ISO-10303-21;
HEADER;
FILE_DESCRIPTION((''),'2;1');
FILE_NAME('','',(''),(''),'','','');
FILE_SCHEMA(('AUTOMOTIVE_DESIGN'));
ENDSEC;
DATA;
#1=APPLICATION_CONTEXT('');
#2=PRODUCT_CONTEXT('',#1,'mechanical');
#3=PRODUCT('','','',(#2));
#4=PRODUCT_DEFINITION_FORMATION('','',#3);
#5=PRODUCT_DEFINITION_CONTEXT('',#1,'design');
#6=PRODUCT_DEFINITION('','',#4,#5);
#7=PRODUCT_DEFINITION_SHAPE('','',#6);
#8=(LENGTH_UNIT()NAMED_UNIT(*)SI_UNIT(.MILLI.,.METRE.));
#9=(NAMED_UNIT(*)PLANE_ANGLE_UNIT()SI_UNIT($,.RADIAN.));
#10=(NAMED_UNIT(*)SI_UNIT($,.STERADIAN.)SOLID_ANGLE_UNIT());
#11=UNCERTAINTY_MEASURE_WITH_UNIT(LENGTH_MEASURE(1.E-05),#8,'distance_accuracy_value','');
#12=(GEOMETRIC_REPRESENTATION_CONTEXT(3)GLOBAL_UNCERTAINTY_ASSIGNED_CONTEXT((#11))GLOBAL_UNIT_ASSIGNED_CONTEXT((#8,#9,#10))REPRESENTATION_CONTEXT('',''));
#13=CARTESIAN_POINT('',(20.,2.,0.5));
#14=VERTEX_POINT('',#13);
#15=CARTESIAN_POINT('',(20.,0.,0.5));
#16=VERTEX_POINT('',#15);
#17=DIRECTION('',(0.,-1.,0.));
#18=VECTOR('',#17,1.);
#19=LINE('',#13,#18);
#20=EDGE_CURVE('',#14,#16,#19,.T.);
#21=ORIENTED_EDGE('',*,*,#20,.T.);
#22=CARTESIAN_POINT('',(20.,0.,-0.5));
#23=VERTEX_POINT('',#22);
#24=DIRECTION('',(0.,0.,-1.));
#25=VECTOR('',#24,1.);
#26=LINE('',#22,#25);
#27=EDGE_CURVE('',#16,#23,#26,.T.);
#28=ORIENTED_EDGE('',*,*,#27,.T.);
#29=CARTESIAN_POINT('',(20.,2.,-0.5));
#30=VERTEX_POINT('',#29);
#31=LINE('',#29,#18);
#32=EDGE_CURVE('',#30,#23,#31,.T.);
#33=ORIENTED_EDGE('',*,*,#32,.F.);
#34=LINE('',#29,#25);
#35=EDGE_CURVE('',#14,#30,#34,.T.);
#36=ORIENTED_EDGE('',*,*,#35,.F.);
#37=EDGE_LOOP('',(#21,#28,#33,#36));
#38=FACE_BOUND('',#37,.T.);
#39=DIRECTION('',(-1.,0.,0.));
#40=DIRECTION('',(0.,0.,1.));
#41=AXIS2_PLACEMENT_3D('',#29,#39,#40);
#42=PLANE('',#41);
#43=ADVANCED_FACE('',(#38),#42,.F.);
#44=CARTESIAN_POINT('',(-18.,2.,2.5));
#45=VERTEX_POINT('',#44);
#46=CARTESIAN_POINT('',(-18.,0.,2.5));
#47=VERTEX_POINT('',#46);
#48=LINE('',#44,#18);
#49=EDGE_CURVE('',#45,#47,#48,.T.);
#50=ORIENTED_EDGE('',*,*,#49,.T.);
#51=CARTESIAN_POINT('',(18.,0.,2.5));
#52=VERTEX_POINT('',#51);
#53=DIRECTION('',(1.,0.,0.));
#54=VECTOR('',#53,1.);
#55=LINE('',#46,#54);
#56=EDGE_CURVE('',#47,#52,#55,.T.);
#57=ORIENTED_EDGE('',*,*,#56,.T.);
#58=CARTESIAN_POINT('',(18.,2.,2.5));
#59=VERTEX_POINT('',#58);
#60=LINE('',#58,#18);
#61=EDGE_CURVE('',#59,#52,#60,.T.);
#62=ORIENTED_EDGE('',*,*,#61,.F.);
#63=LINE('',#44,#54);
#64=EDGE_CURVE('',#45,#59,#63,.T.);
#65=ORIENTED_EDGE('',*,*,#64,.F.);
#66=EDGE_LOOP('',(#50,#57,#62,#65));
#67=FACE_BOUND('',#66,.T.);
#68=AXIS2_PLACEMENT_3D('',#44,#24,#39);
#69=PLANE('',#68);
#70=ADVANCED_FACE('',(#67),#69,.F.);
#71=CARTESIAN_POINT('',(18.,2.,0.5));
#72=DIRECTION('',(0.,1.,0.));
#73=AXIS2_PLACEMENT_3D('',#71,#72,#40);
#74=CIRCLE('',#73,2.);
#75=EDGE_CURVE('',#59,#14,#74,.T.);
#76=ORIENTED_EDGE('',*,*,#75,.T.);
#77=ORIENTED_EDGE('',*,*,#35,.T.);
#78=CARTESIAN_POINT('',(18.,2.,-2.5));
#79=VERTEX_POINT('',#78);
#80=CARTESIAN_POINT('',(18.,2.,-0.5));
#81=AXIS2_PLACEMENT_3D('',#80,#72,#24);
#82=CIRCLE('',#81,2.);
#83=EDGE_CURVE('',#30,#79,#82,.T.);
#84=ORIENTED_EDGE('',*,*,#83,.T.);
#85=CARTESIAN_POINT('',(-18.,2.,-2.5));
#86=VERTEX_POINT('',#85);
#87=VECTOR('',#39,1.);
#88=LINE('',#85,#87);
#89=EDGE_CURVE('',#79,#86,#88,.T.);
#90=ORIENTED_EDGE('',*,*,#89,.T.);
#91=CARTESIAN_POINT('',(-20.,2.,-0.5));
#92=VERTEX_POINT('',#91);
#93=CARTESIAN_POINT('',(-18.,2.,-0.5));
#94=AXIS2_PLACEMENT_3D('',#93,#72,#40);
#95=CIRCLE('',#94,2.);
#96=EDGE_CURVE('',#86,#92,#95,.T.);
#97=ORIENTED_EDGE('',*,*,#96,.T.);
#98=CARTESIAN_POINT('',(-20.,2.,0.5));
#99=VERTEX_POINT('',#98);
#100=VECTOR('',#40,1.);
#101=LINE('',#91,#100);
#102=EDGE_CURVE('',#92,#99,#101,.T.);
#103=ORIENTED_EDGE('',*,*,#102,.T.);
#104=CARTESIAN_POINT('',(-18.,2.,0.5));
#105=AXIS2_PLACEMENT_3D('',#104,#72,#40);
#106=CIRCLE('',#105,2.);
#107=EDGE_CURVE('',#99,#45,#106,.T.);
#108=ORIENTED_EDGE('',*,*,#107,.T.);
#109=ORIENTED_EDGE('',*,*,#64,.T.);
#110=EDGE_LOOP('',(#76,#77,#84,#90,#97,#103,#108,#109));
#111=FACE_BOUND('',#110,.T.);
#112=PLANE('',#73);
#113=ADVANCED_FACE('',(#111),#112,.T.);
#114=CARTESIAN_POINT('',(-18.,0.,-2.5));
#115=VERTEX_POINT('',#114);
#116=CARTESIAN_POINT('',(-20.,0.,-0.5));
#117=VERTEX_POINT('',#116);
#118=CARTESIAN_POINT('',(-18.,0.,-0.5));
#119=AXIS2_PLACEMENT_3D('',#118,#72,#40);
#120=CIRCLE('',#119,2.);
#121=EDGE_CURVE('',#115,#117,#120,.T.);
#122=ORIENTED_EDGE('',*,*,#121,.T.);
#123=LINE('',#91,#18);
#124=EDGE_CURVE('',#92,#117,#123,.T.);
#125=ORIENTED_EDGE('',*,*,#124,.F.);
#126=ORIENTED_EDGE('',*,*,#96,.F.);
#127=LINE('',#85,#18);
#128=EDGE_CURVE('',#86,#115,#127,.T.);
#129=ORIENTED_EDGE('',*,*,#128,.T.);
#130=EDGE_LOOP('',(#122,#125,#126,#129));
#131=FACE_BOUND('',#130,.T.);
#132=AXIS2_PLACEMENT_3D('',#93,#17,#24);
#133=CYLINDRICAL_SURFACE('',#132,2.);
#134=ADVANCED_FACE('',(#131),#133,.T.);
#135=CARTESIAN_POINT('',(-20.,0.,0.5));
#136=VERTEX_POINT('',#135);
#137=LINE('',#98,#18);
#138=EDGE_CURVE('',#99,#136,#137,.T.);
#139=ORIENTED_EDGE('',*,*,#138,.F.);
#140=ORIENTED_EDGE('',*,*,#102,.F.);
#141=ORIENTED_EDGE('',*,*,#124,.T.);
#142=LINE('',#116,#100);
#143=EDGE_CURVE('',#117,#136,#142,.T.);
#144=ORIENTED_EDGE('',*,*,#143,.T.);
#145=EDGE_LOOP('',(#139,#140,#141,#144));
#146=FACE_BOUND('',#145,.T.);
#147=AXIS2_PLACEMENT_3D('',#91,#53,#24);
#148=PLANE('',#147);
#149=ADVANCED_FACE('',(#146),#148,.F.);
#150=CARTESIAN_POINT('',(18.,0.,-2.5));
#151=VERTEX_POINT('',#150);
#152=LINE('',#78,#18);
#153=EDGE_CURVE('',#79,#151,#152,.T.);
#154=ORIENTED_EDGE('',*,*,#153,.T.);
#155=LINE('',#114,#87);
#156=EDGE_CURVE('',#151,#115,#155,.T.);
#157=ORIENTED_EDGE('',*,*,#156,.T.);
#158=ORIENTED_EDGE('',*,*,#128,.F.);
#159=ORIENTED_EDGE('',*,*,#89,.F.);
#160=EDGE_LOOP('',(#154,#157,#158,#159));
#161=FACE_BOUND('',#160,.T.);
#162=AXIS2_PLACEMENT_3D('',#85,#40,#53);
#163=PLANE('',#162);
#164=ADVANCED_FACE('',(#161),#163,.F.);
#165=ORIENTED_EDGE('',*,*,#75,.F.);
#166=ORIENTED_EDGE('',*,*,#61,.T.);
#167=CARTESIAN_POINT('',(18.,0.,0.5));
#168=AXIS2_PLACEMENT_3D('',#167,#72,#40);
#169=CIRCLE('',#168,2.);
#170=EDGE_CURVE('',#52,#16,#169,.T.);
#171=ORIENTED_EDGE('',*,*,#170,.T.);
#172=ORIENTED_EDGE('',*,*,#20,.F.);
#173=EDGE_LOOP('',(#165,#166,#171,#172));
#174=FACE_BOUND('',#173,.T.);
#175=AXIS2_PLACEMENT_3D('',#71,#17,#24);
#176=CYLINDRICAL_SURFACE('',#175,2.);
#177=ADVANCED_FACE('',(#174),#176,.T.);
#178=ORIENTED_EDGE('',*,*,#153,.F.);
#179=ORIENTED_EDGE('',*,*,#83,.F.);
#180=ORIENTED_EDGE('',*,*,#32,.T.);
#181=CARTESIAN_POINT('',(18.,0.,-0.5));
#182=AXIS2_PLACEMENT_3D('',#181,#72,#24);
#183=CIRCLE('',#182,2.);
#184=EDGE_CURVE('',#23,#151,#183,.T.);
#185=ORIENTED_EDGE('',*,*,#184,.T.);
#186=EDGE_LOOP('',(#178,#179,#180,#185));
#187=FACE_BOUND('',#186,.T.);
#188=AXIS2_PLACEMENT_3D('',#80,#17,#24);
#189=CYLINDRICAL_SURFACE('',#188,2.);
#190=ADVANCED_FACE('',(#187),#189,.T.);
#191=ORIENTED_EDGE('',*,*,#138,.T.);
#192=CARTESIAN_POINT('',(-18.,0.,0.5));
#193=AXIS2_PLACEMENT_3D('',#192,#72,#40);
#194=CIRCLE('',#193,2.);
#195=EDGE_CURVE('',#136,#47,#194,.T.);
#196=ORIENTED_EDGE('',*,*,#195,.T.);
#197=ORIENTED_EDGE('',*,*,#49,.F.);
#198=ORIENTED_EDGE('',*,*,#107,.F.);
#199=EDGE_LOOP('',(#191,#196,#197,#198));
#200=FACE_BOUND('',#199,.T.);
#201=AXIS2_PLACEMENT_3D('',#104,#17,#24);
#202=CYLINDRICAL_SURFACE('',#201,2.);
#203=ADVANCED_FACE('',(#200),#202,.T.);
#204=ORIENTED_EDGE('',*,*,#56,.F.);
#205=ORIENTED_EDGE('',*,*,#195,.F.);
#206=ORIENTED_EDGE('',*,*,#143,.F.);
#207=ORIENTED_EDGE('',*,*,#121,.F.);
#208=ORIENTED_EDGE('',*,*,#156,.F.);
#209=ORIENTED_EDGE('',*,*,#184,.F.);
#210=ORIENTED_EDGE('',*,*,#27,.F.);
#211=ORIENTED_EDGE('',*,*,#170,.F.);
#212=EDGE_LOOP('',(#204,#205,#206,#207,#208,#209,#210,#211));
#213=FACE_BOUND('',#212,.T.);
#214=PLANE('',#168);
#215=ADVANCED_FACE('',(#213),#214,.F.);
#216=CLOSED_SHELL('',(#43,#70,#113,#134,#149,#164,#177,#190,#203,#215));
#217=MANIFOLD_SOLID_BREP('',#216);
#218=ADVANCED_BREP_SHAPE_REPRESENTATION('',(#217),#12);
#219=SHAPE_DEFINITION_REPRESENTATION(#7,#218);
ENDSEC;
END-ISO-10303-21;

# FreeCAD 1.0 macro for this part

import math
import FreeCAD as App
import Part
import Sketcher
Q = App.Units.Quantity

doc = App.newDocument("Part")
params = doc.addObject("Spreadsheet::Sheet", "Params")
for row, (alias, value) in enumerate([
    ("sketch1_radius", "2 mm"),
    ("sketch1_width", "36 mm"),
    ("sketch1_height", "1 mm"),
    ("pad1_length", "2 mm"),
], start=1):
    params.set(f"A{row}", alias)
    params.set(f"B{row}", "=" + value)
    params.setAlias(f"B{row}", alias)

body = doc.addObject("PartDesign::Body", "Body")

sketch1 = body.newObject("Sketcher::SketchObject", "Sketch")
sketch1.AttachmentSupport = (doc.getObject("XZ_Plane"), [""])
sketch1.MapMode = "FlatFace"
sketch1.addGeometry(Part.LineSegment(App.Vector(18, -2.5, 0), App.Vector(-18, -2.5, 0)), False)
sketch1.addGeometry(Part.ArcOfCircle(Part.Circle(App.Vector(-18, -0.5, 0), App.Vector(0, 0, 1), 2), math.radians(-180), math.radians(-90)), False)
sketch1.addGeometry(Part.LineSegment(App.Vector(-20, -0.5, 0), App.Vector(-20, 0.5, 0)), False)
sketch1.addGeometry(Part.ArcOfCircle(Part.Circle(App.Vector(-18, 0.5, 0), App.Vector(0, 0, 1), 2), math.radians(90), math.radians(180)), False)
sketch1.addGeometry(Part.LineSegment(App.Vector(-18, 2.5, 0), App.Vector(18, 2.5, 0)), False)
sketch1.addGeometry(Part.ArcOfCircle(Part.Circle(App.Vector(18, 0.5, 0), App.Vector(0, 0, 1), 2), math.radians(0), math.radians(90)), False)
sketch1.addGeometry(Part.LineSegment(App.Vector(20, 0.5, 0), App.Vector(20, -0.5, 0)), False)
sketch1.addGeometry(Part.ArcOfCircle(Part.Circle(App.Vector(18, -0.5, 0), App.Vector(0, 0, 1), 2), math.radians(-90), math.radians(0)), False)
sketch1.addConstraint(Sketcher.Constraint("Tangent", 0, 2, 1, 2))
sketch1.addConstraint(Sketcher.Constraint("Tangent", 1, 1, 2, 1))
sketch1.addConstraint(Sketcher.Constraint("Tangent", 2, 2, 3, 2))
sketch1.addConstraint(Sketcher.Constraint("Tangent", 3, 1, 4, 1))
sketch1.addConstraint(Sketcher.Constraint("Tangent", 4, 2, 5, 2))
sketch1.addConstraint(Sketcher.Constraint("Tangent", 5, 1, 6, 1))
sketch1.addConstraint(Sketcher.Constraint("Tangent", 6, 2, 7, 2))
sketch1.addConstraint(Sketcher.Constraint("Tangent", 7, 1, 0, 1))
sketch1.addConstraint(Sketcher.Constraint("Horizontal", 0))
sketch1.addConstraint(Sketcher.Constraint("Vertical", 2))
sketch1.addConstraint(Sketcher.Constraint("Horizontal", 4))
sketch1.addConstraint(Sketcher.Constraint("Vertical", 6))
sketch1.addConstraint(Sketcher.Constraint("Equal", 1, 3))
sketch1.addConstraint(Sketcher.Constraint("Equal", 3, 5))
sketch1.addConstraint(Sketcher.Constraint("Equal", 5, 7))
sketch1.addConstraint(Sketcher.Constraint("Symmetric", 1, 3, 5, 3, -1, 1))
sketch1.addConstraint(Sketcher.Constraint("Radius", 1, Q("2 mm")))
sketch1.addConstraint(Sketcher.Constraint("DistanceX", 0, 2, 0, 1, Q("36 mm")))
sketch1.addConstraint(Sketcher.Constraint("DistanceY", 2, 1, 2, 2, Q("1 mm")))
sketch1.setExpression("Constraints[16]", "Params.sketch1_radius")
sketch1.setExpression("Constraints[17]", "Params.sketch1_width")
sketch1.setExpression("Constraints[18]", "Params.sketch1_height")
pad1 = body.newObject("PartDesign::Pad", "Pad")
pad1.Profile = sketch1
pad1.setExpression("Length", "Params.pad1_length")
pad1.Reversed = True

doc.recompute()
